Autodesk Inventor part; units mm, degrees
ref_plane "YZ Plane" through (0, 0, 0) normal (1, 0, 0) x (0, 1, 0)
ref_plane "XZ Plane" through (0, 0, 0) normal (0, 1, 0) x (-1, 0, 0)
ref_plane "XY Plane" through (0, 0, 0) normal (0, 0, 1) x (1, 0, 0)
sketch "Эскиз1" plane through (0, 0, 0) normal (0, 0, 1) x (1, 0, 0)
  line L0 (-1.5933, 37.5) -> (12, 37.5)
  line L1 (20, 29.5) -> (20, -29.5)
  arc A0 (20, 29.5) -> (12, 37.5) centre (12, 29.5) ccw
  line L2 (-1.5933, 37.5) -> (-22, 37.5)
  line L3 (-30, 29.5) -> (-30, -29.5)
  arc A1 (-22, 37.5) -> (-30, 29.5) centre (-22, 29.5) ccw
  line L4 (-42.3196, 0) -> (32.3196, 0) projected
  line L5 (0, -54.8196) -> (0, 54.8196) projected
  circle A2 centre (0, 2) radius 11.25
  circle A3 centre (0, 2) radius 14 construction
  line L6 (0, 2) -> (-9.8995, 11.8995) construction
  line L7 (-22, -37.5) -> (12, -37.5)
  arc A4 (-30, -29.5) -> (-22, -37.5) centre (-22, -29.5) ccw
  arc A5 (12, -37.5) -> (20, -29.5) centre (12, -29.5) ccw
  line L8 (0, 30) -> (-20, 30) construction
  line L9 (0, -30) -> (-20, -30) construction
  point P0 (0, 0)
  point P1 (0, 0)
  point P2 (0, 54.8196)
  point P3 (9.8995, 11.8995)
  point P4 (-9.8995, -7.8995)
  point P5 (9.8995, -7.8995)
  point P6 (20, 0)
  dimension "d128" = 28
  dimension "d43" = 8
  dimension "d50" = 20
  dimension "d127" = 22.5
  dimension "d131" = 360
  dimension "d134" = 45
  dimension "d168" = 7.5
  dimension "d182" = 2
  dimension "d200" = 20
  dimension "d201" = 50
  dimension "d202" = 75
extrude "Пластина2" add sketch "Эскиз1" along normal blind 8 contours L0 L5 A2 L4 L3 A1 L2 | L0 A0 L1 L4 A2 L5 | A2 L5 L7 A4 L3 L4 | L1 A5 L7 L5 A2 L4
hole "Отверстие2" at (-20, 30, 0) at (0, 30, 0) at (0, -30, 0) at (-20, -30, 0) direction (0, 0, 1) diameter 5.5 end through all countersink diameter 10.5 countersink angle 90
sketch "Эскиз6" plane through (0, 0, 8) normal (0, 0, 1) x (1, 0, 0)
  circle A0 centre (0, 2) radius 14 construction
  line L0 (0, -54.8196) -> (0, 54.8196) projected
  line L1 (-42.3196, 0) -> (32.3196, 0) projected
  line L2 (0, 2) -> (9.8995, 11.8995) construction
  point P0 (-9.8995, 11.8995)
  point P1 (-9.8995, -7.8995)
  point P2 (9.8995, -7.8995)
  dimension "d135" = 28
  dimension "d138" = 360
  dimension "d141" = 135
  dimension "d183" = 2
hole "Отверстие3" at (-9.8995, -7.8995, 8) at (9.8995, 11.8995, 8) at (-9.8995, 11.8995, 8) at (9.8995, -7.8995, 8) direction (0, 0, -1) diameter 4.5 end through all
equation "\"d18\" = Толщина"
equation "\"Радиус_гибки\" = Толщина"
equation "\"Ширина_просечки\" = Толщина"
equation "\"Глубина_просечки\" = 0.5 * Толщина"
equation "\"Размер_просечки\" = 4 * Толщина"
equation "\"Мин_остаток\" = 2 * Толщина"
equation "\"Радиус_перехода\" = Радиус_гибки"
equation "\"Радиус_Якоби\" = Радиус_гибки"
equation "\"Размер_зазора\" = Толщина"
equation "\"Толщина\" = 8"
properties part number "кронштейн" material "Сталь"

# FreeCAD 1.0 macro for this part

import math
import FreeCAD as App
import Part
import Sketcher
Q = App.Units.Quantity

doc = App.newDocument("Part")
body = doc.addObject("PartDesign::Body", "Body")

# Sketch on XY plane
sketch1 = doc.addObject("Sketcher::SketchObject", "Sketch")
body.addObject(sketch1)
sketch1.AttachmentSupport = (doc.XY_Plane, [""])
sketch1.MapMode = "FlatFace"
sketch1.addGeometry([
    Part.ArcOfCircle(Part.Circle(App.Vector(-22, 29.5, 0), App.Vector(0, 0, 1), 8), math.radians(90), math.radians(180)),  # 0
    Part.LineSegment(App.Vector(-30, 29.5, 0), App.Vector(-30, -29.5, 0)),  # 1
    Part.ArcOfCircle(Part.Circle(App.Vector(-22, -29.5, 0), App.Vector(0, 0, 1), 8), math.radians(180), math.radians(270)),  # 2
    Part.LineSegment(App.Vector(-22, -37.5, 0), App.Vector(12, -37.5, 0)),  # 3
    Part.ArcOfCircle(Part.Circle(App.Vector(12, -29.5, 0), App.Vector(0, 0, 1), 8), math.radians(-90), math.radians(0)),  # 4
    Part.LineSegment(App.Vector(20, -29.5, 0), App.Vector(20, 29.5, 0)),  # 5
    Part.ArcOfCircle(Part.Circle(App.Vector(12, 29.5, 0), App.Vector(0, 0, 1), 8), math.radians(0), math.radians(90)),  # 6
    Part.LineSegment(App.Vector(12, 37.5, 0), App.Vector(-22, 37.5, 0)),  # 7
    Part.Circle(App.Vector(0, 2, 0), App.Vector(0, 0, 1), 11.25),  # 8
], False)
sketch1.addConstraint([
    Sketcher.Constraint("Tangent", 0, 2, 1, 1),
    Sketcher.Constraint("Tangent", 1, 2, 2, 1),
    Sketcher.Constraint("Tangent", 2, 2, 3, 1),
    Sketcher.Constraint("Tangent", 3, 2, 4, 1),
    Sketcher.Constraint("Tangent", 4, 2, 5, 1),
    Sketcher.Constraint("Tangent", 5, 2, 6, 1),
    Sketcher.Constraint("Tangent", 6, 2, 7, 1),
    Sketcher.Constraint("Tangent", 7, 2, 0, 1),
    Sketcher.Constraint("Vertical", 1),
    Sketcher.Constraint("Horizontal", 3),
    Sketcher.Constraint("Vertical", 5),
    Sketcher.Constraint("Horizontal", 7),
    Sketcher.Constraint("Equal", 0, 2),
    Sketcher.Constraint("Equal", 2, 4),
    Sketcher.Constraint("Equal", 4, 6),
    Sketcher.Constraint("PointOnObject", 8, 3, -2),
    Sketcher.Constraint("Radius", 0, Q("8 mm")),
    Sketcher.Constraint("Diameter", 8, Q("22.5 mm")),
    Sketcher.Constraint("DistanceY", -1, 1, 8, 3, Q("2 mm")),
    Sketcher.Constraint("DistanceX", -1, 1, 4, 2, Q("20 mm")),
    Sketcher.Constraint("DistanceX", 0, 2, 5, 2, Q("50 mm")),
    Sketcher.Constraint("DistanceY", 1, 2, 1, 1, Q("59 mm")),
    Sketcher.Constraint("DistanceY", -1, 1, 0, 3, Q("29.5 mm")),
])
pad1 = doc.addObject("PartDesign::Pad", "Pad")
body.addObject(pad1)
pad1.Profile = sketch1
pad1.Length = 8

# Sketch on XY plane
sketch2 = doc.addObject("Sketcher::SketchObject", "Sketch001")
body.addObject(sketch2)
sketch2.AttachmentSupport = (doc.XY_Plane, [""])
sketch2.MapMode = "FlatFace"
sketch2.addGeometry([
    Part.Circle(App.Vector(-20, 30, 0), App.Vector(0, 0, 1), 2.75),
    Part.Circle(App.Vector(0, 30, 0), App.Vector(0, 0, 1), 2.75),
    Part.Circle(App.Vector(0, -30, 0), App.Vector(0, 0, 1), 2.75),
    Part.Circle(App.Vector(-20, -30, 0), App.Vector(0, 0, 1), 2.75),
], False)
sketch2.addConstraint([
    Sketcher.Constraint("Equal", 0, 1),
    Sketcher.Constraint("Equal", 1, 2),
    Sketcher.Constraint("Equal", 2, 3),
    Sketcher.Constraint("Symmetric", 1, 3, 2, 3, -1, 1),
    Sketcher.Constraint("Symmetric", 0, 3, 3, 3, -1),
    Sketcher.Constraint("PointOnObject", 1, 3, -2),
    Sketcher.Constraint("Horizontal", 0, 3, 1, 3),
    Sketcher.Constraint("Diameter", 0, Q("5.5 mm")),
    Sketcher.Constraint("DistanceX", 0, 3, -1, 1, Q("20 mm")),
    Sketcher.Constraint("DistanceY", -1, 1, 0, 3, Q("30 mm")),
])
doc.recompute()
hole = doc.addObject("PartDesign::Hole", "Hole")
body.addObject(hole)
hole.Profile = sketch2
hole.ThreadType = "None"
hole.Diameter = 5.5
hole.DepthType = "ThroughAll"
hole.HoleCutType = "Countersink"
hole.HoleCutDiameter = 10.5
hole.HoleCutCountersinkAngle = 90
hole.Reversed = True

# Sketch on XY plane
sketch3 = doc.addObject("Sketcher::SketchObject", "Sketch002")
body.addObject(sketch3)
sketch3.AttachmentSupport = (doc.XY_Plane, [""])
sketch3.MapMode = "FlatFace"
sketch3.AttachmentOffset = App.Placement(App.Vector(0, 0, 8), App.Rotation())
sketch3.addGeometry([
    Part.Circle(App.Vector(-9.8995, -7.8995, 0), App.Vector(0, 0, 1), 2.25),
    Part.Circle(App.Vector(9.8995, 11.8995, 0), App.Vector(0, 0, 1), 2.25),
    Part.Circle(App.Vector(-9.8995, 11.8995, 0), App.Vector(0, 0, 1), 2.25),
    Part.Circle(App.Vector(9.8995, -7.8995, 0), App.Vector(0, 0, 1), 2.25),
], False)
sketch3.addConstraint([
    Sketcher.Constraint("Equal", 0, 1),
    Sketcher.Constraint("Equal", 1, 2),
    Sketcher.Constraint("Equal", 2, 3),
    Sketcher.Constraint("Symmetric", 1, 3, 2, 3, -2),
    Sketcher.Constraint("Symmetric", 0, 3, 3, 3, -2),
    Sketcher.Constraint("Vertical", 0, 3, 2, 3),
    Sketcher.Constraint("Diameter", 0, Q("4.5 mm")),
    Sketcher.Constraint("DistanceX", 0, 3, 1, 3, Q("19.799 mm")),
    Sketcher.Constraint("DistanceY", 0, 3, 1, 3, Q("19.799 mm")),
    Sketcher.Constraint("DistanceY", 0, 3, -1, 1, Q("7.8995 mm")),
])
doc.recompute()
hole2 = doc.addObject("PartDesign::Hole", "Hole001")
body.addObject(hole2)
hole2.Profile = sketch3
hole2.ThreadType = "None"
hole2.Diameter = 4.5
hole2.DepthType = "ThroughAll"

doc.recompute()
